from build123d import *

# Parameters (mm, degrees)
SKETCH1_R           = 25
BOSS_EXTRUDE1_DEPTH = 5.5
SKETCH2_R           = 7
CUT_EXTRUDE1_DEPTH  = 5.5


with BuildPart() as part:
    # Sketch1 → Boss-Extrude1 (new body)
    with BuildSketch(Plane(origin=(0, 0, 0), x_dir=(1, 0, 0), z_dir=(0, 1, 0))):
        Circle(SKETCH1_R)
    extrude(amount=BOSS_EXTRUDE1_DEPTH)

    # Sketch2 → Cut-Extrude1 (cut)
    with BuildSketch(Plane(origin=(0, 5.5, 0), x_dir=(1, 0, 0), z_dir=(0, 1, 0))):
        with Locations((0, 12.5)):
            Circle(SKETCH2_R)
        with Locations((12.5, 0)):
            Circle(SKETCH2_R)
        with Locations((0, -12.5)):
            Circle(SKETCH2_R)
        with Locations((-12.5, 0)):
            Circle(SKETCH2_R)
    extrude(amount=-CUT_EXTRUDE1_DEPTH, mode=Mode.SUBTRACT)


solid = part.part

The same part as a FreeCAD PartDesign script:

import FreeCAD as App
import Part
import Sketcher
from FreeCAD import Vector

doc = App.newDocument("Part")
body = doc.addObject("PartDesign::Body", "Body")

# Sketch on XZ plane
sketch1 = body.newObject("Sketcher::SketchObject", "Sketch")
sketch1.AttachmentSupport = (doc.getObject("XZ_Plane"), [""])
sketch1.MapMode = "FlatFace"
sketch1.addGeometry(Part.Circle(Vector(0, 0, 0), Vector(0, 0, 1), 25), False)
sketch1.addConstraint([
    Sketcher.Constraint("Coincident", 0, 3, -1, 1),
    Sketcher.Constraint("Diameter", 0, 50.0),
])
pad1 = body.newObject("PartDesign::Pad", "Pad")
pad1.Profile = sketch1
pad1.Length = 5.5
pad1.Reversed = True

# Sketch on XZ plane
sketch2 = body.newObject("Sketcher::SketchObject", "Sketch001")
sketch2.AttachmentSupport = (doc.getObject("XZ_Plane"), [""])
sketch2.MapMode = "FlatFace"
sketch2.AttachmentOffset = App.Placement(Vector(0, 0, -5.5), App.Rotation())
sketch2.addGeometry([
    Part.Circle(Vector(0, -12, 0), Vector(0, 0, 1), 7),
    Part.Circle(Vector(12, 0, 0), Vector(0, 0, 1), 7),
    Part.Circle(Vector(0, 12, 0), Vector(0, 0, 1), 7),
    Part.Circle(Vector(-12, 0, 0), Vector(0, 0, 1), 7),
], False)
sketch2.addConstraint([
    Sketcher.Constraint("Equal", 0, 1),
    Sketcher.Constraint("Equal", 1, 2),
    Sketcher.Constraint("Equal", 2, 3),
    Sketcher.Constraint("Symmetric", 0, 3, 2, 3, -1, 1),
    Sketcher.Constraint("Symmetric", 1, 3, 3, 3, -1, 1),
    Sketcher.Constraint("PointOnObject", 0, 3, -2),
    Sketcher.Constraint("PointOnObject", 1, 3, -1),
    Sketcher.Constraint("Diameter", 0, 14.0),
    Sketcher.Constraint("DistanceY", 0, 3, 2, 3, 25.0),
    Sketcher.Constraint("DistanceX", 3, 3, 1, 3, 25.0),
])
pocket1 = body.newObject("PartDesign::Pocket", "Pocket")
pocket1.Profile = sketch2
pocket1.Length = 5.5
pocket1.Reversed = True

doc.recompute()
